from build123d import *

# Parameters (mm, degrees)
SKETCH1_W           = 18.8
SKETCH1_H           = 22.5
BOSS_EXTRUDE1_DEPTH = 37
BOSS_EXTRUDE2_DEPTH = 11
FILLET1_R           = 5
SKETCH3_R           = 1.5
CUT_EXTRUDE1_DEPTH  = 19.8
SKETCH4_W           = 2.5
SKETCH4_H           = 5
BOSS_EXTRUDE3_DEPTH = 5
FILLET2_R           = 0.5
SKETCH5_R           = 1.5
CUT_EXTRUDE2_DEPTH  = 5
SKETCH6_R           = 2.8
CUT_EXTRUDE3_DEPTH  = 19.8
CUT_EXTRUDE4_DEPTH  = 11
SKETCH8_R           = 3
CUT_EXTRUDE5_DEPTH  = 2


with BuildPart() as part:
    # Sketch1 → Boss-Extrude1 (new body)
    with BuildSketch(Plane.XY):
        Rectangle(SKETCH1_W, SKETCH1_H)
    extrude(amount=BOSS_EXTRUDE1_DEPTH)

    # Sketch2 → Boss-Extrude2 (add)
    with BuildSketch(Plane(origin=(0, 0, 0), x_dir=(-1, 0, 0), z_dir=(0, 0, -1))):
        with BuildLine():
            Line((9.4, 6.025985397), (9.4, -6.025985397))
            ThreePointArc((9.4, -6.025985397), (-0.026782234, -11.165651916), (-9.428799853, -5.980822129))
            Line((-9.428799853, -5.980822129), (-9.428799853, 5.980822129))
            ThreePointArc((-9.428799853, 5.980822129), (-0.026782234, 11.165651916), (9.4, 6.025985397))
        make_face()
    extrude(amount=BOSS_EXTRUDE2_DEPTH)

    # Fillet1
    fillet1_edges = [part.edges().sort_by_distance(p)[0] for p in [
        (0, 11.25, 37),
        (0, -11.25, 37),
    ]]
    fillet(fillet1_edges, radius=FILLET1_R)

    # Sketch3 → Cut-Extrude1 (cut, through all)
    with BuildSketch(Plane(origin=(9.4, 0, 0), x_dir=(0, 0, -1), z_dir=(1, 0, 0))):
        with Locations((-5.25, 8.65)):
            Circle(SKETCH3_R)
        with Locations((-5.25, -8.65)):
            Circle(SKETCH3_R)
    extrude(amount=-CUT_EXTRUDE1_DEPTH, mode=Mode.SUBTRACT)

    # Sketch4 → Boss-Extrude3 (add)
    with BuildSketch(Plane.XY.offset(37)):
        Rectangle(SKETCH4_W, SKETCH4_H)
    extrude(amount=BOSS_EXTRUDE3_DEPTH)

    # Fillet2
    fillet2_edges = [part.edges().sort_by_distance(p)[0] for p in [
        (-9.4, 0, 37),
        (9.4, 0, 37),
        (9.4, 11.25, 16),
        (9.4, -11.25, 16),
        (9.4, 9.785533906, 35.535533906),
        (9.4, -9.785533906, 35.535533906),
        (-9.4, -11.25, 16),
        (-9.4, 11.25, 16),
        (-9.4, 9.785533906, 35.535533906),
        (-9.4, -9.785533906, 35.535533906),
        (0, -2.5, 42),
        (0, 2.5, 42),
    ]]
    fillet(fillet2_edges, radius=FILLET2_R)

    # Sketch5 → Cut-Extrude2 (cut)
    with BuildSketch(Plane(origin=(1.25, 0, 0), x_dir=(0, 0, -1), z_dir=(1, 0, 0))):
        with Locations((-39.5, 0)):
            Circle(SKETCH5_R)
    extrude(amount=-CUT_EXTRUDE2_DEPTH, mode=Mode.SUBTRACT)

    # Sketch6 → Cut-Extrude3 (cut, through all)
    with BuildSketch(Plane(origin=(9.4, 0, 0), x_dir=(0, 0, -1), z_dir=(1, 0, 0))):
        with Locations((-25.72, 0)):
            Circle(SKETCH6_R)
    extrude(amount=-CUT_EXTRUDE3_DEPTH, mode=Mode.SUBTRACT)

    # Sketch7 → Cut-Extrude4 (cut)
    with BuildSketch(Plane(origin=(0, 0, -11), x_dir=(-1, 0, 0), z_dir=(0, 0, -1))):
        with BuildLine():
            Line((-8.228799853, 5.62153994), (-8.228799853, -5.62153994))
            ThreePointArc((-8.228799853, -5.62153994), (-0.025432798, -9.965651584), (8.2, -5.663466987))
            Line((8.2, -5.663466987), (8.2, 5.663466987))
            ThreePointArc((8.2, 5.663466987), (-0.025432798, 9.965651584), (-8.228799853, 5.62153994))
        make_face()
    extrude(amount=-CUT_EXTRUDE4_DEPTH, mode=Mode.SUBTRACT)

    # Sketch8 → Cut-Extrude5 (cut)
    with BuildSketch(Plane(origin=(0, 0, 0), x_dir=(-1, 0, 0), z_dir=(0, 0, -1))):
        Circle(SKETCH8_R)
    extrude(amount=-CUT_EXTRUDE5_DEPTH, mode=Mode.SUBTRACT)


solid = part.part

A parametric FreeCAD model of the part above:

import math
import FreeCAD as App
import Part
import Sketcher

V = App.Vector


def edges_at(feature, points):
    """Names of the edges that pass closest to the given points."""
    edges = feature.Shape.Edges
    near = lambda p: min(range(len(edges)), key=lambda i: edges[i].distToShape(Part.Vertex(*p))[0])
    return sorted({f"Edge{near(p) + 1}" for p in points})

doc = App.newDocument("Part")
body = doc.addObject("PartDesign::Body", "Body")

# Sketch on XY plane
sketch1 = body.newObject("Sketcher::SketchObject", "Sketch")
sketch1.AttachmentSupport = (doc.getObject("XY_Plane"), [""])
sketch1.MapMode = "FlatFace"
sketch1.addGeometry([
    Part.LineSegment(V(-9, 11, 0), V(-9, -11, 0)),
    Part.LineSegment(V(-9, -11, 0), V(9, -11, 0)),
    Part.LineSegment(V(9, -11, 0), V(9, 11, 0)),
    Part.LineSegment(V(9, 11, 0), V(-9, 11, 0)),
], False)
sketch1.addConstraint([
    Sketcher.Constraint("Coincident", 0, 2, 1, 1),
    Sketcher.Constraint("Coincident", 1, 2, 2, 1),
    Sketcher.Constraint("Coincident", 2, 2, 3, 1),
    Sketcher.Constraint("Coincident", 3, 2, 0, 1),
    Sketcher.Constraint("Vertical", 0),
    Sketcher.Constraint("Horizontal", 1),
    Sketcher.Constraint("Vertical", 2),
    Sketcher.Constraint("Horizontal", 3),
    Sketcher.Constraint("Symmetric", 0, 2, 2, 2, -1, 1),
    Sketcher.Constraint("DistanceX", 1, 1, 1, 2, 18.8),
    Sketcher.Constraint("DistanceY", 0, 2, 0, 1, 22.5),
])
pad1 = body.newObject("PartDesign::Pad", "Pad")
pad1.Profile = sketch1
pad1.Length = 37

# Sketch on XY plane
sketch2 = body.newObject("Sketcher::SketchObject", "Sketch001")
sketch2.AttachmentSupport = (doc.getObject("XY_Plane"), [""])
sketch2.MapMode = "FlatFace"
sketch2.addGeometry([
    Part.LineSegment(V(-9, -6, 0), V(-9, 6, 0)),
    Part.ArcOfCircle(Part.Circle(V(0, 0, 0), V(0, 0, 1), 11), math.radians(32), math.radians(147)),
    Part.LineSegment(V(9, 6, 0), V(9, -6, 0)),
    Part.ArcOfCircle(Part.Circle(V(0, 0, 0), V(0, 0, 1), 11), math.radians(-147), math.radians(-32)),
], False)
sketch2.addConstraint([
    Sketcher.Constraint("Coincident", 0, 2, 1, 2),
    Sketcher.Constraint("Coincident", 1, 1, 2, 1),
    Sketcher.Constraint("Coincident", 2, 2, 3, 2),
    Sketcher.Constraint("Coincident", 3, 1, 0, 1),
    Sketcher.Constraint("Vertical", 0),
    Sketcher.Constraint("Vertical", 2),
    Sketcher.Constraint("Coincident", 1, 3, -1, 1),
    Sketcher.Constraint("Coincident", 3, 3, -1, 1),
    Sketcher.Constraint("Equal", 1, 3),
    Sketcher.Constraint("DistanceX", 0, 2, -1, 1, 9.4),
    Sketcher.Constraint("Radius", 1, 11.165684),
    Sketcher.Constraint("DistanceX", -1, 1, 1, 1, 9.4288),
])
pad2 = body.newObject("PartDesign::Pad", "Pad001")
pad2.Profile = sketch2
pad2.Length = 11
pad2.Reversed = True
doc.recompute()

fillet = body.newObject("PartDesign::Fillet", "Fillet")
fillet.Base = (pad2, edges_at(pad2, [(0, 11.25, 37), (0, -11.25, 37)]))
fillet.Radius = 5

# Sketch on YZ plane
sketch3 = body.newObject("Sketcher::SketchObject", "Sketch002")
sketch3.AttachmentSupport = (doc.getObject("YZ_Plane"), [""])
sketch3.MapMode = "FlatFace"
sketch3.AttachmentOffset = App.Placement(V(0, 0, 9.4), App.Rotation())
sketch3.addGeometry([
    Part.Circle(V(8.7, 5.2, 0), V(0, 0, 1), 1.5),
    Part.Circle(V(-8.7, 5.2, 0), V(0, 0, 1), 1.5),
], False)
sketch3.addConstraint([
    Sketcher.Constraint("Equal", 0, 1),
    Sketcher.Constraint("Symmetric", 0, 3, 1, 3, -2),
    Sketcher.Constraint("Diameter", 0, 3.0),
    Sketcher.Constraint("DistanceX", 1, 3, 0, 3, 17.3),
    Sketcher.Constraint("DistanceY", -1, 1, 0, 3, 5.25),
])
pocket1 = body.newObject("PartDesign::Pocket", "Pocket")
pocket1.Profile = sketch3
pocket1.Type = "ThroughAll"

# Sketch on XY plane
sketch4 = body.newObject("Sketcher::SketchObject", "Sketch003")
sketch4.AttachmentSupport = (doc.getObject("XY_Plane"), [""])
sketch4.MapMode = "FlatFace"
sketch4.AttachmentOffset = App.Placement(V(0, 0, 37), App.Rotation())
sketch4.addGeometry([
    Part.LineSegment(V(-1.2, 2.5, 0), V(-1.2, -2.5, 0)),
    Part.LineSegment(V(-1.2, -2.5, 0), V(1.2, -2.5, 0)),
    Part.LineSegment(V(1.2, -2.5, 0), V(1.2, 2.5, 0)),
    Part.LineSegment(V(1.2, 2.5, 0), V(-1.2, 2.5, 0)),
], False)
sketch4.addConstraint([
    Sketcher.Constraint("Coincident", 0, 2, 1, 1),
    Sketcher.Constraint("Coincident", 1, 2, 2, 1),
    Sketcher.Constraint("Coincident", 2, 2, 3, 1),
    Sketcher.Constraint("Coincident", 3, 2, 0, 1),
    Sketcher.Constraint("Vertical", 0),
    Sketcher.Constraint("Horizontal", 1),
    Sketcher.Constraint("Vertical", 2),
    Sketcher.Constraint("Horizontal", 3),
    Sketcher.Constraint("Symmetric", 0, 2, 2, 2, -1, 1),
    Sketcher.Constraint("DistanceY", 0, 2, 0, 1, 5.0),
    Sketcher.Constraint("DistanceX", 1, 1, 1, 2, 2.5),
])
pad3 = body.newObject("PartDesign::Pad", "Pad002")
pad3.Profile = sketch4
pad3.Length = 5
doc.recompute()

fillet2 = body.newObject("PartDesign::Fillet", "Fillet001")
fillet2.Base = (pad3, edges_at(pad3, [
    (-9.4, 0, 37),
    (9.4, 0, 37),
    (9.4, 11.25, 16),
    (9.4, -11.25, 16),
    (9.4, 9.786, 35.536),
    (9.4, -9.786, 35.536),
    (-9.4, -11.25, 16),
    (-9.4, 11.25, 16),
    (-9.4, 9.786, 35.536),
    (-9.4, -9.786, 35.536),
    (0, -2.5, 42),
    (0, 2.5, 42),
]))
fillet2.Radius = 0.5

# Sketch on YZ plane
sketch5 = body.newObject("Sketcher::SketchObject", "Sketch004")
sketch5.AttachmentSupport = (doc.getObject("YZ_Plane"), [""])
sketch5.MapMode = "FlatFace"
sketch5.AttachmentOffset = App.Placement(V(0, 0, 1.25), App.Rotation())
sketch5.addGeometry(Part.Circle(V(0, 39.5, 0), V(0, 0, 1), 1.5), False)
sketch5.addConstraint([
    Sketcher.Constraint("PointOnObject", 0, 3, -2),
    Sketcher.Constraint("Diameter", 0, 3.0),
    Sketcher.Constraint("DistanceY", -1, 1, 0, 3, 39.5),
])
pocket2 = body.newObject("PartDesign::Pocket", "Pocket001")
pocket2.Profile = sketch5
pocket2.Length = 5

# Sketch on YZ plane
sketch6 = body.newObject("Sketcher::SketchObject", "Sketch005")
sketch6.AttachmentSupport = (doc.getObject("YZ_Plane"), [""])
sketch6.MapMode = "FlatFace"
sketch6.AttachmentOffset = App.Placement(V(0, 0, 9.4), App.Rotation())
sketch6.addGeometry(Part.Circle(V(0, 25.7, 0), V(0, 0, 1), 2.8), False)
sketch6.addConstraint([
    Sketcher.Constraint("PointOnObject", 0, 3, -2),
    Sketcher.Constraint("Diameter", 0, 5.6),
    Sketcher.Constraint("DistanceY", -1, 1, 0, 3, 25.72),
])
pocket3 = body.newObject("PartDesign::Pocket", "Pocket002")
pocket3.Profile = sketch6
pocket3.Type = "ThroughAll"

# Sketch on XY plane
sketch7 = body.newObject("Sketcher::SketchObject", "Sketch006")
sketch7.AttachmentSupport = (doc.getObject("XY_Plane"), [""])
sketch7.MapMode = "FlatFace"
sketch7.AttachmentOffset = App.Placement(V(0, 0, -11), App.Rotation())
sketch7.addGeometry([
    Part.LineSegment(V(8, 6, 0), V(8, -6, 0)),
    Part.ArcOfCircle(Part.Circle(V(0, 0, 0), V(0, 0, 1), 10), math.radians(-145), math.radians(-34)),
    Part.LineSegment(V(-8, -6, 0), V(-8, 6, 0)),
    Part.ArcOfCircle(Part.Circle(V(0, 0, 0), V(0, 0, 1), 10), math.radians(34), math.radians(145)),
], False)
sketch7.addConstraint([
    Sketcher.Constraint("Coincident", 0, 2, 1, 2),
    Sketcher.Constraint("Coincident", 1, 1, 2, 1),
    Sketcher.Constraint("Coincident", 2, 2, 3, 2),
    Sketcher.Constraint("Coincident", 3, 1, 0, 1),
    Sketcher.Constraint("Vertical", 0),
    Sketcher.Constraint("Vertical", 2),
    Sketcher.Constraint("Coincident", 1, 3, -1, 1),
    Sketcher.Constraint("Coincident", 3, 3, -1, 1),
    Sketcher.Constraint("Equal", 1, 3),
    Sketcher.Constraint("DistanceX", 1, 1, -1, 1, 8.2),
    Sketcher.Constraint("Radius", 1, 9.965684),
    Sketcher.Constraint("DistanceY", 0, 2, 0, 1, 11.24308),
])
pocket4 = body.newObject("PartDesign::Pocket", "Pocket003")
pocket4.Profile = sketch7
pocket4.Length = 11
pocket4.Reversed = True

# Sketch on XY plane
sketch8 = body.newObject("Sketcher::SketchObject", "Sketch007")
sketch8.AttachmentSupport = (doc.getObject("XY_Plane"), [""])
sketch8.MapMode = "FlatFace"
sketch8.addGeometry(Part.Circle(V(0, 0, 0), V(0, 0, 1), 3), False)
sketch8.addConstraint([
    Sketcher.Constraint("Coincident", 0, 3, -1, 1),
    Sketcher.Constraint("Diameter", 0, 6.0),
])
pocket5 = body.newObject("PartDesign::Pocket", "Pocket004")
pocket5.Profile = sketch8
pocket5.Length = 2
pocket5.Reversed = True

doc.recompute()
